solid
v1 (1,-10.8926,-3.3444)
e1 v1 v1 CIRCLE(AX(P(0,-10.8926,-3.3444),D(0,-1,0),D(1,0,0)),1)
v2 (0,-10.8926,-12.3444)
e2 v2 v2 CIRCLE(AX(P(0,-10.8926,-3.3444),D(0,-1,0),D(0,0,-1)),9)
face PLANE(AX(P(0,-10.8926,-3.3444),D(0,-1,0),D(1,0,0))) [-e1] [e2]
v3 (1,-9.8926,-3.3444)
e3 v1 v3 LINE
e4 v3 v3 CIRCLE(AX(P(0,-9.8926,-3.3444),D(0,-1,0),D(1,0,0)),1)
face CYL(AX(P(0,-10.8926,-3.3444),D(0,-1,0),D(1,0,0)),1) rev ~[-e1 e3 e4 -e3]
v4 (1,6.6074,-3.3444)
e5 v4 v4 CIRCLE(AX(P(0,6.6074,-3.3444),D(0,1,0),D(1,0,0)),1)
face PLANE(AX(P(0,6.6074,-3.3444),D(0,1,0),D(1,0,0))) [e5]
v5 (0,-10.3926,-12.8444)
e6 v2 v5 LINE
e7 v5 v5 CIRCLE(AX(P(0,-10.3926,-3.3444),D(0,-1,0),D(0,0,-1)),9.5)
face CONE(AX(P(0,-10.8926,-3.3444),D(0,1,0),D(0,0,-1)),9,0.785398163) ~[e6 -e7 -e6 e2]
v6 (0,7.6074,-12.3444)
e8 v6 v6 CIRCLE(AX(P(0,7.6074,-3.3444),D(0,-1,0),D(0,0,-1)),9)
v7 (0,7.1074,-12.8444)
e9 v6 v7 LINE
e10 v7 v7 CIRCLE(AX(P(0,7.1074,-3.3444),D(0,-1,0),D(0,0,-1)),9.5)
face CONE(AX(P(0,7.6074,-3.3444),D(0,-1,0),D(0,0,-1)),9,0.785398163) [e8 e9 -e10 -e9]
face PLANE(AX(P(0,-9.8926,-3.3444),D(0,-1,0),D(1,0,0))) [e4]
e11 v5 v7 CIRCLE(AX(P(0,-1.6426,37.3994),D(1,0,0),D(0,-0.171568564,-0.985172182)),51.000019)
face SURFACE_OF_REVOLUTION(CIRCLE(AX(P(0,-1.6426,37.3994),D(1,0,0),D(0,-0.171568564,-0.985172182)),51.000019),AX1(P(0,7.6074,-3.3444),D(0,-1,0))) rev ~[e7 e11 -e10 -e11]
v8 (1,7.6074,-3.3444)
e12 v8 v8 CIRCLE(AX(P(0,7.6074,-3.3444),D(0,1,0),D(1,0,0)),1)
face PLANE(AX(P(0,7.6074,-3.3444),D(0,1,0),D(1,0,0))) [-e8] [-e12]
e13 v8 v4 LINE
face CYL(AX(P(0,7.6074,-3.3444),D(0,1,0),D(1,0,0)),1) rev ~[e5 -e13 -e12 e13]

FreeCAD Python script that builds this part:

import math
import FreeCAD as App
import Part
import Sketcher
Q = App.Units.Quantity

doc = App.newDocument("Part")
body = doc.addObject("PartDesign::Body", "Body")

# Sketch on YZ plane
sketch1 = doc.addObject("Sketcher::SketchObject", "Sketch")
body.addObject(sketch1)
sketch1.AttachmentSupport = (doc.YZ_Plane, [""])
sketch1.MapMode = "FlatFace"
sketch1.addGeometry([
    Part.LineSegment(App.Vector(7.6, -12.3, 0), App.Vector(7.6, -3.3, 0)),  # 0
    Part.LineSegment(App.Vector(7.6, -3.3, 0), App.Vector(-10.9, -3.3, 0)),  # 1
    Part.LineSegment(App.Vector(-10.9, -3.3, 0), App.Vector(-10.9, -12.3, 0)),  # 2
    Part.LineSegment(App.Vector(-10.9, -12.3, 0), App.Vector(-10.4, -12.8, 0)),  # 3
    Part.ArcOfCircle(Part.Circle(App.Vector(-1.6, 37.4, 0), App.Vector(0, 0, 1), 51), math.radians(-99.88), math.radians(-80.12)),  # 4
    Part.LineSegment(App.Vector(7.1, -12.8, 0), App.Vector(7.6, -12.3, 0)),  # 5
], False)
sketch1.addGeometry(Part.LineSegment(App.Vector(7.6, -3.3, 0), App.Vector(-10.9, -3.3, 0)), True)  # axis
sketch1.addConstraint([
    Sketcher.Constraint("Coincident", 0, 2, 1, 1),
    Sketcher.Constraint("Coincident", 1, 2, 2, 1),
    Sketcher.Constraint("Coincident", 2, 2, 3, 1),
    Sketcher.Constraint("Coincident", 3, 2, 4, 1),
    Sketcher.Constraint("Coincident", 4, 2, 5, 1),
    Sketcher.Constraint("Coincident", 5, 2, 0, 1),
    Sketcher.Constraint("Vertical", 0),
    Sketcher.Constraint("Horizontal", 1),
    Sketcher.Constraint("Vertical", 2),
    Sketcher.Constraint("Horizontal", 6),
    Sketcher.Constraint("Coincident", 6, 1, 0, 2),
    Sketcher.Constraint("Perpendicular", 3, 5),
    Sketcher.Constraint("Horizontal", 3, 2, 4, 2),
    Sketcher.Constraint("Horizontal", 2, 2, 5, 2),
    Sketcher.Constraint("Vertical", 2, 2, 6, 2),
    Sketcher.Constraint("Equal", 3, 5),
    Sketcher.Constraint("Radius", 4, Q("51 mm")),
    Sketcher.Constraint("DistanceX", 1, 2, 1, 1, Q("18.5 mm")),
    Sketcher.Constraint("DistanceX", 3, 2, 0, 2, Q("18 mm")),
    Sketcher.Constraint("DistanceY", 3, 2, 1, 2, Q("9.5 mm")),
    Sketcher.Constraint("DistanceX", 4, 3, -1, 1, Q("1.6426 mm")),
    Sketcher.Constraint("DistanceY", -1, 1, 4, 3, Q("37.3994 mm")),
])
revolution = doc.addObject("PartDesign::Revolution", "Revolution")
body.addObject(revolution)
revolution.Profile = sketch1
revolution.ReferenceAxis = (sketch1, ["Axis0"])
revolution.Angle = 360

# Sketch on XZ plane
sketch2 = doc.addObject("Sketcher::SketchObject", "Sketch001")
body.addObject(sketch2)
sketch2.AttachmentSupport = (doc.XZ_Plane, [""])
sketch2.MapMode = "FlatFace"
sketch2.AttachmentOffset = App.Placement(App.Vector(0, 0, -7.6074), App.Rotation())
sketch2.addGeometry(Part.Circle(App.Vector(0, -3.3, 0), App.Vector(0, 0, 1), 1.1), False)
sketch2.addConstraint([
    Sketcher.Constraint("PointOnObject", 0, 3, -2),
    Sketcher.Constraint("Diameter", 0, Q("2.2 mm")),
    Sketcher.Constraint("DistanceY", 0, 3, -1, 1, Q("3.3444 mm")),
])
pocket1 = doc.addObject("PartDesign::Pocket", "Pocket")
body.addObject(pocket1)
pocket1.Profile = sketch2
pocket1.Length = 1.2
pocket1.Reversed = True

# Sketch on XZ plane
sketch3 = doc.addObject("Sketcher::SketchObject", "Sketch002")
body.addObject(sketch3)
sketch3.AttachmentSupport = (doc.XZ_Plane, [""])
sketch3.MapMode = "FlatFace"
sketch3.AttachmentOffset = App.Placement(App.Vector(0, 0, 10.8926), App.Rotation())
sketch3.addGeometry(Part.Circle(App.Vector(0, -3.3, 0), App.Vector(0, 0, 1), 1.1), False)
sketch3.addConstraint([
    Sketcher.Constraint("PointOnObject", 0, 3, -2),
    Sketcher.Constraint("Diameter", 0, Q("2.2 mm")),
    Sketcher.Constraint("DistanceY", 0, 3, -1, 1, Q("3.3444 mm")),
])
pocket2 = doc.addObject("PartDesign::Pocket", "Pocket001")
body.addObject(pocket2)
pocket2.Profile = sketch3
pocket2.Length = 1.2

# Sketch on XZ plane
sketch4 = doc.addObject("Sketcher::SketchObject", "Sketch003")
body.addObject(sketch4)
sketch4.AttachmentSupport = (doc.XZ_Plane, [""])
sketch4.MapMode = "FlatFace"
sketch4.AttachmentOffset = App.Placement(App.Vector(0, 0, 10.8926), App.Rotation())
sketch4.addGeometry([
    Part.Circle(App.Vector(0, -3.3, 0), App.Vector(0, 0, 1), 1.1),
    Part.Circle(App.Vector(0, -3.3, 0), App.Vector(0, 0, 1), 1),
], False)
sketch4.addConstraint([
    Sketcher.Constraint("Coincident", 1, 3, 0, 3),
    Sketcher.Constraint("PointOnObject", 0, 3, -2),
    Sketcher.Constraint("Diameter", 1, Q("2 mm")),
    Sketcher.Constraint("Diameter", 0, Q("2.2 mm")),
    Sketcher.Constraint("DistanceY", 0, 3, -1, 1, Q("3.3444 mm")),
])
pad1 = doc.addObject("PartDesign::Pad", "Pad")
body.addObject(pad1)
pad1.Profile = sketch4
pad1.Length = 1.2
pad1.Reversed = True

# Sketch on XZ plane
sketch5 = doc.addObject("Sketcher::SketchObject", "Sketch004")
body.addObject(sketch5)
sketch5.AttachmentSupport = (doc.XZ_Plane, [""])
sketch5.MapMode = "FlatFace"
sketch5.AttachmentOffset = App.Placement(App.Vector(0, 0, -7.6074), App.Rotation())
sketch5.addGeometry([
    Part.Circle(App.Vector(0, -3.3, 0), App.Vector(0, 0, 1), 1.1),
    Part.Circle(App.Vector(0, -3.3, 0), App.Vector(0, 0, 1), 1),
], False)
sketch5.addConstraint([
    Sketcher.Constraint("Coincident", 1, 3, 0, 3),
    Sketcher.Constraint("PointOnObject", 0, 3, -2),
    Sketcher.Constraint("Diameter", 1, Q("2 mm")),
    Sketcher.Constraint("Diameter", 0, Q("2.2 mm")),
    Sketcher.Constraint("DistanceY", 0, 3, -1, 1, Q("3.3444 mm")),
])
pad2 = doc.addObject("PartDesign::Pad", "Pad001")
body.addObject(pad2)
pad2.Profile = sketch5
pad2.Length = 1.2

# Sketch on XZ plane
sketch6 = doc.addObject("Sketcher::SketchObject", "Sketch005")
body.addObject(sketch6)
sketch6.AttachmentSupport = (doc.XZ_Plane, [""])
sketch6.MapMode = "FlatFace"
sketch6.AttachmentOffset = App.Placement(App.Vector(0, 0, -6.4074), App.Rotation())
sketch6.addGeometry(Part.Circle(App.Vector(0, -3.3, 0), App.Vector(0, 0, 1), 1), False)
sketch6.addConstraint([
    Sketcher.Constraint("PointOnObject", 0, 3, -2),
    Sketcher.Constraint("Diameter", 0, Q("2 mm")),
    Sketcher.Constraint("DistanceY", 0, 3, -1, 1, Q("3.3444 mm")),
])
pad3 = doc.addObject("PartDesign::Pad", "Pad002")
body.addObject(pad3)
pad3.Profile = sketch6
pad3.Length = 0.2
pad3.Reversed = True

# Sketch on XZ plane
sketch7 = doc.addObject("Sketcher::SketchObject", "Sketch006")
body.addObject(sketch7)
sketch7.AttachmentSupport = (doc.XZ_Plane, [""])
sketch7.MapMode = "FlatFace"
sketch7.AttachmentOffset = App.Placement(App.Vector(0, 0, 9.6926), App.Rotation())
sketch7.addGeometry(Part.Circle(App.Vector(0, -3.3, 0), App.Vector(0, 0, 1), 1), False)
sketch7.addConstraint([
    Sketcher.Constraint("PointOnObject", 0, 3, -2),
    Sketcher.Constraint("Diameter", 0, Q("2 mm")),
    Sketcher.Constraint("DistanceY", 0, 3, -1, 1, Q("3.3444 mm")),
])
pad4 = doc.addObject("PartDesign::Pad", "Pad003")
body.addObject(pad4)
pad4.Profile = sketch7
pad4.Length = 0.2

doc.recompute()
